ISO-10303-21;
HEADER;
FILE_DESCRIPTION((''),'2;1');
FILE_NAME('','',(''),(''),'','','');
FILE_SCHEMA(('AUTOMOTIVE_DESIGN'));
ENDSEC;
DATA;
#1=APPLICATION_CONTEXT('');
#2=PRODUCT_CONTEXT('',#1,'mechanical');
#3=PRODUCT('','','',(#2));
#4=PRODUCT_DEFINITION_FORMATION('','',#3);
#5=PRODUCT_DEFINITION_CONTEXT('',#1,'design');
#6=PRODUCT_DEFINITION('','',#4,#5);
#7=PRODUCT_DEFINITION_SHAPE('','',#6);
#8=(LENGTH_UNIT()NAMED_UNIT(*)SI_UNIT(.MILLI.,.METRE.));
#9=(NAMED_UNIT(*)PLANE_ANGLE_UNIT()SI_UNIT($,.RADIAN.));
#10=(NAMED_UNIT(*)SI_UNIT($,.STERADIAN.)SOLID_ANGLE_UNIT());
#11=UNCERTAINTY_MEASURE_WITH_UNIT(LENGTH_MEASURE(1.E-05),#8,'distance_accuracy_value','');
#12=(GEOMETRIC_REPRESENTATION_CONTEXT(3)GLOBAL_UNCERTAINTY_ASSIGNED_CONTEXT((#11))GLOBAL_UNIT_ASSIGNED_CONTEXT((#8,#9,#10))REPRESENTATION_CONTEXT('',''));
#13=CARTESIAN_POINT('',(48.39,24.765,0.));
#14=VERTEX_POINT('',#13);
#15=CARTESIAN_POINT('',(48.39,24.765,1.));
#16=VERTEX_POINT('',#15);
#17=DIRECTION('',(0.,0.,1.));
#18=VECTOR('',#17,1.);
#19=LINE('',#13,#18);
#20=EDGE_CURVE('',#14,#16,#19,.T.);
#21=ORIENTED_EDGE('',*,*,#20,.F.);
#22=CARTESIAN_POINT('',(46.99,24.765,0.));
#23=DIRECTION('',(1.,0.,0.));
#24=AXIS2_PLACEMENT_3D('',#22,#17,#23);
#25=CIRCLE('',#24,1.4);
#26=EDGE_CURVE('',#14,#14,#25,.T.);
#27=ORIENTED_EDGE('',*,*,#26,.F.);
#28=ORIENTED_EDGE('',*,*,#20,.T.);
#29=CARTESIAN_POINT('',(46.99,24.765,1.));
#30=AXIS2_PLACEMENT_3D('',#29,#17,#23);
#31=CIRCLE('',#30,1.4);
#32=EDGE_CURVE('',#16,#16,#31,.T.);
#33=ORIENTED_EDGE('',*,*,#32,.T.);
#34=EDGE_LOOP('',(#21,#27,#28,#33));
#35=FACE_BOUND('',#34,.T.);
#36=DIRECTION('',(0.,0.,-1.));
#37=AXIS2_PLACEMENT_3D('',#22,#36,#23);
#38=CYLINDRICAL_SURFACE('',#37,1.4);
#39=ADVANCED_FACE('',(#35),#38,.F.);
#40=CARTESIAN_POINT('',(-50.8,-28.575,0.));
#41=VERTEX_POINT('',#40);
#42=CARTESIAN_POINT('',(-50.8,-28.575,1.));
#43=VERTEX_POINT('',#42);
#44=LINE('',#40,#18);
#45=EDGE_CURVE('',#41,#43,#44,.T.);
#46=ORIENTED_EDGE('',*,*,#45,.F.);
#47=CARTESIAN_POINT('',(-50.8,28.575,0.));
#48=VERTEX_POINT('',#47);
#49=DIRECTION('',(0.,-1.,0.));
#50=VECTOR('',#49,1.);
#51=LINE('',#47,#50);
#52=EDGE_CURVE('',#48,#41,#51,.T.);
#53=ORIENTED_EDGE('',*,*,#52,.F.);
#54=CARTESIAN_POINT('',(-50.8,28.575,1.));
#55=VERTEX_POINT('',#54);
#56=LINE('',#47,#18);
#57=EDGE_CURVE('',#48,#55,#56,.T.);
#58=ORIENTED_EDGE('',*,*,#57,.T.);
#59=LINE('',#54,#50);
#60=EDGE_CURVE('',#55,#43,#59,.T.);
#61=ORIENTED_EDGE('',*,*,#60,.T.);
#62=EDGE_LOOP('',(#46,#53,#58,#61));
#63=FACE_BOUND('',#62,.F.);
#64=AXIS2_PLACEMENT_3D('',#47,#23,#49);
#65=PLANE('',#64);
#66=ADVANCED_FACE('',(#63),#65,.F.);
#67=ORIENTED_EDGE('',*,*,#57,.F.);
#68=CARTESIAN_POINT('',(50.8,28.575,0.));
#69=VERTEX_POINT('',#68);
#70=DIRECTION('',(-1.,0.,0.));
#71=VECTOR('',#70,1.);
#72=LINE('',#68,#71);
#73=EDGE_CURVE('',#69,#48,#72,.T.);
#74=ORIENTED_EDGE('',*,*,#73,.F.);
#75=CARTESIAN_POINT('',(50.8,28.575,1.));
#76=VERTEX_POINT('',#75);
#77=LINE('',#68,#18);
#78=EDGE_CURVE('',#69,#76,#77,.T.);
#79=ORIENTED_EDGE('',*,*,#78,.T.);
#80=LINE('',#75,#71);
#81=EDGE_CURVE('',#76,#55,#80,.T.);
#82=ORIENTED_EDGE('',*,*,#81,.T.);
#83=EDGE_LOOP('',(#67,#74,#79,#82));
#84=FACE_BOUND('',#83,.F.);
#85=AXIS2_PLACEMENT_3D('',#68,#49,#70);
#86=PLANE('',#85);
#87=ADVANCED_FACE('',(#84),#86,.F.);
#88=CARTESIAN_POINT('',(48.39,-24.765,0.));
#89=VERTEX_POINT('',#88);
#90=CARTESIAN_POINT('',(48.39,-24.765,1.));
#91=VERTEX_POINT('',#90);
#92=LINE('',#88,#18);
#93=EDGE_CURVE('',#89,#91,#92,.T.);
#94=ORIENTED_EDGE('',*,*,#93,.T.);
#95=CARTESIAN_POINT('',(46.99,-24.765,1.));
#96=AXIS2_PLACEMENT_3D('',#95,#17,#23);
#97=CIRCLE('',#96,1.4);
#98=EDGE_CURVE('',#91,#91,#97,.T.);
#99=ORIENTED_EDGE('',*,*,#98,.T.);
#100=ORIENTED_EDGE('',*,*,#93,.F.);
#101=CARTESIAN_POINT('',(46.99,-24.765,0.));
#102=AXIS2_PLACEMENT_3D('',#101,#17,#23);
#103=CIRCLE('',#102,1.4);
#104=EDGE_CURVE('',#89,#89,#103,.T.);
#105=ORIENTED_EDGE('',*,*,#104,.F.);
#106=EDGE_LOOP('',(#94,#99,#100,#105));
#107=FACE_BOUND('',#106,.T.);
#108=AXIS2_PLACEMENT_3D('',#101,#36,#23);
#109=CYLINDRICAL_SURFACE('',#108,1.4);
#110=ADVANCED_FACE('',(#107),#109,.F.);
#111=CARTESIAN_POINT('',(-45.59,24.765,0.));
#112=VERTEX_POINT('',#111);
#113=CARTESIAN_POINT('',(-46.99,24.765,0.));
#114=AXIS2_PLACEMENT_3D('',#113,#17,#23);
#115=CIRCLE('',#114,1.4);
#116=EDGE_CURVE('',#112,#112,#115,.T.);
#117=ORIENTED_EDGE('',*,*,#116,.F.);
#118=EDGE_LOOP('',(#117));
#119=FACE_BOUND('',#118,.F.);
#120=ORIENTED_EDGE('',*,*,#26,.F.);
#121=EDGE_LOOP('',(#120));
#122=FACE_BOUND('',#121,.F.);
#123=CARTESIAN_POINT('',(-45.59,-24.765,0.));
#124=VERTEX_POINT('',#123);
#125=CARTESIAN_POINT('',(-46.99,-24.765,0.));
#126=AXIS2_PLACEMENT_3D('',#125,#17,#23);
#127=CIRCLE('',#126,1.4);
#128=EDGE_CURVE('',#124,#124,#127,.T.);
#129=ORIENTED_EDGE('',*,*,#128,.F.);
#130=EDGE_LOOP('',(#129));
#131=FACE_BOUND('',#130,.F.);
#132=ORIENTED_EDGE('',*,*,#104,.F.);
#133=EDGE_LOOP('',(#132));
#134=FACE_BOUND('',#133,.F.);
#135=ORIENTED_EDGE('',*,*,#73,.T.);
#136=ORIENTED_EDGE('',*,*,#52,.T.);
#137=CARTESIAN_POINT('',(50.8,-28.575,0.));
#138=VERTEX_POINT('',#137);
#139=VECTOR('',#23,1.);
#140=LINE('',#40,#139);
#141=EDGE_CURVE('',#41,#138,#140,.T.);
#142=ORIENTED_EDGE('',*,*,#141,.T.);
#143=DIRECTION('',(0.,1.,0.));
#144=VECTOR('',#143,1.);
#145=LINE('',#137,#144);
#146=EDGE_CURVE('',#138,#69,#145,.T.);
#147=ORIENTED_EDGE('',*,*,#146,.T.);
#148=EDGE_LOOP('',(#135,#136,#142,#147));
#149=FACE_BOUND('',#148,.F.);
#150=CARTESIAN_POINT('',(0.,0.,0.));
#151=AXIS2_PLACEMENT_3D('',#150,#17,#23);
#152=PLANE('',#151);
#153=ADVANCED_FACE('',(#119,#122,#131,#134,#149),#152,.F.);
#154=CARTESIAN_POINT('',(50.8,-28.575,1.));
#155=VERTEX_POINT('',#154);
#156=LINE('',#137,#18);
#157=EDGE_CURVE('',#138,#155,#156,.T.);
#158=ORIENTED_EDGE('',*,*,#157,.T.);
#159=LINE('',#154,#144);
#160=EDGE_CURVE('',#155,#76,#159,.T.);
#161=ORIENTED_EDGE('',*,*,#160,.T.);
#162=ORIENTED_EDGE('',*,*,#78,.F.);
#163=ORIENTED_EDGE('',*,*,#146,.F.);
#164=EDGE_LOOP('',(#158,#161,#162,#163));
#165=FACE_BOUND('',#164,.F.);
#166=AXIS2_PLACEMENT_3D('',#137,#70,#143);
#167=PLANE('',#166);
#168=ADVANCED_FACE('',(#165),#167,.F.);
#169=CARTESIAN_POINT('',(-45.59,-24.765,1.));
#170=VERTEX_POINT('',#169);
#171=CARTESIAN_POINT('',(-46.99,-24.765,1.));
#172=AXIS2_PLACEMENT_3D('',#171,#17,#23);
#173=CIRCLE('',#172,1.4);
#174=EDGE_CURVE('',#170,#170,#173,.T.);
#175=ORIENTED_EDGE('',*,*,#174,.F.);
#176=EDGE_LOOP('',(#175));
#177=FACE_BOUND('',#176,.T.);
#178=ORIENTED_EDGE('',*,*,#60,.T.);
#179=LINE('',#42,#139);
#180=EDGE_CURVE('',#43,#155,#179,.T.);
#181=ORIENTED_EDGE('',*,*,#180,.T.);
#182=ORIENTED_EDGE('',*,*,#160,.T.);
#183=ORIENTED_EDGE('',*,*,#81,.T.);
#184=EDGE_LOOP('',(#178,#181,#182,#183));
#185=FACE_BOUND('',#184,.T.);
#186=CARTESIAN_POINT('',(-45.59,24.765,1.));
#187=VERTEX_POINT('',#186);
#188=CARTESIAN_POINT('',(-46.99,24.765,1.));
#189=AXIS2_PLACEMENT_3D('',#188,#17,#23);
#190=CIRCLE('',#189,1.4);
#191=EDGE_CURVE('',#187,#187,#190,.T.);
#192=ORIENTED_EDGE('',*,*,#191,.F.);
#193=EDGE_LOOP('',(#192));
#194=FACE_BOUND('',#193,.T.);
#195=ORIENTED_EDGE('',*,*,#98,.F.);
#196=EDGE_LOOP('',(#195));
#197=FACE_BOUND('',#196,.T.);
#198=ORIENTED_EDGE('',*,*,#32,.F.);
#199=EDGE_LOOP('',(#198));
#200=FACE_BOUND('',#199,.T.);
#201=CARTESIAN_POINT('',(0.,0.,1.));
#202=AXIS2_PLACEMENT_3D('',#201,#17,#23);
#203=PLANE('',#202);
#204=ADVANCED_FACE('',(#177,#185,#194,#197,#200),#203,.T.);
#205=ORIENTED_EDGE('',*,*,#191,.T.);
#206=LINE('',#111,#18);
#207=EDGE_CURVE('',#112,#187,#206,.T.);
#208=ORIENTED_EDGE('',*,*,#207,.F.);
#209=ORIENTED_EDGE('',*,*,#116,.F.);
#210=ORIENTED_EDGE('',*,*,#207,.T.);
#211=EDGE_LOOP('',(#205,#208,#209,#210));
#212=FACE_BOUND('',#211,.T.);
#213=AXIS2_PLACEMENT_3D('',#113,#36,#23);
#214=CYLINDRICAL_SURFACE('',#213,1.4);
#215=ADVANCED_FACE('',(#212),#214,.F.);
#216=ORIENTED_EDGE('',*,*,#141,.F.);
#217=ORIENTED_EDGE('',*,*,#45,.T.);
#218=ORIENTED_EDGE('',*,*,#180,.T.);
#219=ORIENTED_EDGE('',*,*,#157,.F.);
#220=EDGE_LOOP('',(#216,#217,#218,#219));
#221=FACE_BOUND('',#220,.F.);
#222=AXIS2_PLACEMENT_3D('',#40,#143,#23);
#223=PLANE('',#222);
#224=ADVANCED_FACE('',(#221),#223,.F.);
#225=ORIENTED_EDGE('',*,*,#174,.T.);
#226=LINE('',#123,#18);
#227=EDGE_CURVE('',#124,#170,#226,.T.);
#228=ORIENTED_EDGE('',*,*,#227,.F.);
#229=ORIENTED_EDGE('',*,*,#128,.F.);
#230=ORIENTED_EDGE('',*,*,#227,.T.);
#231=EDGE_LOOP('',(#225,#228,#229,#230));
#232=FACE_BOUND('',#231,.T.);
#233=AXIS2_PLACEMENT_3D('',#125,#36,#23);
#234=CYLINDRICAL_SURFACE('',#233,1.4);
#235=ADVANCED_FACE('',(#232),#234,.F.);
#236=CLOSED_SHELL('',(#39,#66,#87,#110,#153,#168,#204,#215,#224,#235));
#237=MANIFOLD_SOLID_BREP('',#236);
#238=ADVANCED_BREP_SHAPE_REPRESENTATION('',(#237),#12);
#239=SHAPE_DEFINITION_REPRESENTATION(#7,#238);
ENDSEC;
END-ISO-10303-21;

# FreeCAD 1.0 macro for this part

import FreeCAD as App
import Part
import Sketcher

V = App.Vector
Q = App.Units.Quantity


def add_polygon(sketch, points):
    """Adds a closed chain of lines whose ends are joined by coincident constraints."""
    first, n = sketch.GeometryCount, len(points)
    for a, b in zip(points, points[1:] + points[:1]):
        sketch.addGeometry(Part.LineSegment(App.Vector(*a, 0), App.Vector(*b, 0)), False)
    for i in range(n):
        sketch.addConstraint(Sketcher.Constraint("Coincident", first + i, 2, first + (i + 1) % n, 1))

doc = App.newDocument("Part")
params = doc.addObject("Spreadsheet::Sheet", "Params")
for row, (alias, value) in enumerate([
    ("sketch1_diameter", "2.8 mm"),
    ("sketch1_width", "101.6 mm"),
    ("sketch1_height", "57.15 mm"),
    ("pad1_length", "1 mm"),
], start=1):
    params.set(f"A{row}", alias)
    params.set(f"B{row}", "=" + value)
    params.setAlias(f"B{row}", alias)

body = doc.addObject("PartDesign::Body", "Body")

sketch1 = body.newObject("Sketcher::SketchObject", "Sketch")
sketch1.AttachmentSupport = (doc.getObject("XY_Plane"), [""])
sketch1.MapMode = "FlatFace"
add_polygon(sketch1, [(-50.8, 28.6), (-50.8, -28.6), (50.8, -28.6), (50.8, 28.6)])
sketch1.addGeometry(Part.Circle(V(-47, -24.8, 0), V(0, 0, 1), 1.4), False)
sketch1.addGeometry(Part.Circle(V(47, -24.8, 0), V(0, 0, 1), 1.4), False)
sketch1.addGeometry(Part.Circle(V(-47, 24.8, 0), V(0, 0, 1), 1.4), False)
sketch1.addGeometry(Part.Circle(V(47, 24.8, 0), V(0, 0, 1), 1.4), False)
sketch1.addConstraint([
    Sketcher.Constraint("Vertical", 0),
    Sketcher.Constraint("Horizontal", 1),
    Sketcher.Constraint("Vertical", 2),
    Sketcher.Constraint("Horizontal", 3),
    Sketcher.Constraint("Equal", 4, 5),
    Sketcher.Constraint("Equal", 5, 6),
    Sketcher.Constraint("Equal", 6, 7),
    Sketcher.Constraint("Symmetric", 5, 3, 6, 3, -1, 1),
    Sketcher.Constraint("Symmetric", 4, 3, 7, 3, -1, 1),
    Sketcher.Constraint("Symmetric", 0, 2, 2, 2, -1, 1),
    Sketcher.Constraint("Symmetric", 4, 3, 5, 3, -2),
    Sketcher.Constraint("Diameter", 4, Q("2.8 mm")),
    Sketcher.Constraint("DistanceX", 1, 1, 1, 2, Q("101.6 mm")),
    Sketcher.Constraint("DistanceY", 0, 2, 0, 1, Q("57.15 mm")),
    Sketcher.Constraint("DistanceX", 4, 3, 5, 3, Q("93.98 mm")),
    Sketcher.Constraint("DistanceY", 4, 3, 6, 3, Q("49.53 mm")),
])
sketch1.setExpression("Constraints[15]", "Params.sketch1_diameter")
sketch1.setExpression("Constraints[16]", "Params.sketch1_width")
sketch1.setExpression("Constraints[17]", "Params.sketch1_height")
pad1 = body.newObject("PartDesign::Pad", "Pad")
pad1.Profile = sketch1
pad1.setExpression("Length", "Params.pad1_length")

doc.recompute()
